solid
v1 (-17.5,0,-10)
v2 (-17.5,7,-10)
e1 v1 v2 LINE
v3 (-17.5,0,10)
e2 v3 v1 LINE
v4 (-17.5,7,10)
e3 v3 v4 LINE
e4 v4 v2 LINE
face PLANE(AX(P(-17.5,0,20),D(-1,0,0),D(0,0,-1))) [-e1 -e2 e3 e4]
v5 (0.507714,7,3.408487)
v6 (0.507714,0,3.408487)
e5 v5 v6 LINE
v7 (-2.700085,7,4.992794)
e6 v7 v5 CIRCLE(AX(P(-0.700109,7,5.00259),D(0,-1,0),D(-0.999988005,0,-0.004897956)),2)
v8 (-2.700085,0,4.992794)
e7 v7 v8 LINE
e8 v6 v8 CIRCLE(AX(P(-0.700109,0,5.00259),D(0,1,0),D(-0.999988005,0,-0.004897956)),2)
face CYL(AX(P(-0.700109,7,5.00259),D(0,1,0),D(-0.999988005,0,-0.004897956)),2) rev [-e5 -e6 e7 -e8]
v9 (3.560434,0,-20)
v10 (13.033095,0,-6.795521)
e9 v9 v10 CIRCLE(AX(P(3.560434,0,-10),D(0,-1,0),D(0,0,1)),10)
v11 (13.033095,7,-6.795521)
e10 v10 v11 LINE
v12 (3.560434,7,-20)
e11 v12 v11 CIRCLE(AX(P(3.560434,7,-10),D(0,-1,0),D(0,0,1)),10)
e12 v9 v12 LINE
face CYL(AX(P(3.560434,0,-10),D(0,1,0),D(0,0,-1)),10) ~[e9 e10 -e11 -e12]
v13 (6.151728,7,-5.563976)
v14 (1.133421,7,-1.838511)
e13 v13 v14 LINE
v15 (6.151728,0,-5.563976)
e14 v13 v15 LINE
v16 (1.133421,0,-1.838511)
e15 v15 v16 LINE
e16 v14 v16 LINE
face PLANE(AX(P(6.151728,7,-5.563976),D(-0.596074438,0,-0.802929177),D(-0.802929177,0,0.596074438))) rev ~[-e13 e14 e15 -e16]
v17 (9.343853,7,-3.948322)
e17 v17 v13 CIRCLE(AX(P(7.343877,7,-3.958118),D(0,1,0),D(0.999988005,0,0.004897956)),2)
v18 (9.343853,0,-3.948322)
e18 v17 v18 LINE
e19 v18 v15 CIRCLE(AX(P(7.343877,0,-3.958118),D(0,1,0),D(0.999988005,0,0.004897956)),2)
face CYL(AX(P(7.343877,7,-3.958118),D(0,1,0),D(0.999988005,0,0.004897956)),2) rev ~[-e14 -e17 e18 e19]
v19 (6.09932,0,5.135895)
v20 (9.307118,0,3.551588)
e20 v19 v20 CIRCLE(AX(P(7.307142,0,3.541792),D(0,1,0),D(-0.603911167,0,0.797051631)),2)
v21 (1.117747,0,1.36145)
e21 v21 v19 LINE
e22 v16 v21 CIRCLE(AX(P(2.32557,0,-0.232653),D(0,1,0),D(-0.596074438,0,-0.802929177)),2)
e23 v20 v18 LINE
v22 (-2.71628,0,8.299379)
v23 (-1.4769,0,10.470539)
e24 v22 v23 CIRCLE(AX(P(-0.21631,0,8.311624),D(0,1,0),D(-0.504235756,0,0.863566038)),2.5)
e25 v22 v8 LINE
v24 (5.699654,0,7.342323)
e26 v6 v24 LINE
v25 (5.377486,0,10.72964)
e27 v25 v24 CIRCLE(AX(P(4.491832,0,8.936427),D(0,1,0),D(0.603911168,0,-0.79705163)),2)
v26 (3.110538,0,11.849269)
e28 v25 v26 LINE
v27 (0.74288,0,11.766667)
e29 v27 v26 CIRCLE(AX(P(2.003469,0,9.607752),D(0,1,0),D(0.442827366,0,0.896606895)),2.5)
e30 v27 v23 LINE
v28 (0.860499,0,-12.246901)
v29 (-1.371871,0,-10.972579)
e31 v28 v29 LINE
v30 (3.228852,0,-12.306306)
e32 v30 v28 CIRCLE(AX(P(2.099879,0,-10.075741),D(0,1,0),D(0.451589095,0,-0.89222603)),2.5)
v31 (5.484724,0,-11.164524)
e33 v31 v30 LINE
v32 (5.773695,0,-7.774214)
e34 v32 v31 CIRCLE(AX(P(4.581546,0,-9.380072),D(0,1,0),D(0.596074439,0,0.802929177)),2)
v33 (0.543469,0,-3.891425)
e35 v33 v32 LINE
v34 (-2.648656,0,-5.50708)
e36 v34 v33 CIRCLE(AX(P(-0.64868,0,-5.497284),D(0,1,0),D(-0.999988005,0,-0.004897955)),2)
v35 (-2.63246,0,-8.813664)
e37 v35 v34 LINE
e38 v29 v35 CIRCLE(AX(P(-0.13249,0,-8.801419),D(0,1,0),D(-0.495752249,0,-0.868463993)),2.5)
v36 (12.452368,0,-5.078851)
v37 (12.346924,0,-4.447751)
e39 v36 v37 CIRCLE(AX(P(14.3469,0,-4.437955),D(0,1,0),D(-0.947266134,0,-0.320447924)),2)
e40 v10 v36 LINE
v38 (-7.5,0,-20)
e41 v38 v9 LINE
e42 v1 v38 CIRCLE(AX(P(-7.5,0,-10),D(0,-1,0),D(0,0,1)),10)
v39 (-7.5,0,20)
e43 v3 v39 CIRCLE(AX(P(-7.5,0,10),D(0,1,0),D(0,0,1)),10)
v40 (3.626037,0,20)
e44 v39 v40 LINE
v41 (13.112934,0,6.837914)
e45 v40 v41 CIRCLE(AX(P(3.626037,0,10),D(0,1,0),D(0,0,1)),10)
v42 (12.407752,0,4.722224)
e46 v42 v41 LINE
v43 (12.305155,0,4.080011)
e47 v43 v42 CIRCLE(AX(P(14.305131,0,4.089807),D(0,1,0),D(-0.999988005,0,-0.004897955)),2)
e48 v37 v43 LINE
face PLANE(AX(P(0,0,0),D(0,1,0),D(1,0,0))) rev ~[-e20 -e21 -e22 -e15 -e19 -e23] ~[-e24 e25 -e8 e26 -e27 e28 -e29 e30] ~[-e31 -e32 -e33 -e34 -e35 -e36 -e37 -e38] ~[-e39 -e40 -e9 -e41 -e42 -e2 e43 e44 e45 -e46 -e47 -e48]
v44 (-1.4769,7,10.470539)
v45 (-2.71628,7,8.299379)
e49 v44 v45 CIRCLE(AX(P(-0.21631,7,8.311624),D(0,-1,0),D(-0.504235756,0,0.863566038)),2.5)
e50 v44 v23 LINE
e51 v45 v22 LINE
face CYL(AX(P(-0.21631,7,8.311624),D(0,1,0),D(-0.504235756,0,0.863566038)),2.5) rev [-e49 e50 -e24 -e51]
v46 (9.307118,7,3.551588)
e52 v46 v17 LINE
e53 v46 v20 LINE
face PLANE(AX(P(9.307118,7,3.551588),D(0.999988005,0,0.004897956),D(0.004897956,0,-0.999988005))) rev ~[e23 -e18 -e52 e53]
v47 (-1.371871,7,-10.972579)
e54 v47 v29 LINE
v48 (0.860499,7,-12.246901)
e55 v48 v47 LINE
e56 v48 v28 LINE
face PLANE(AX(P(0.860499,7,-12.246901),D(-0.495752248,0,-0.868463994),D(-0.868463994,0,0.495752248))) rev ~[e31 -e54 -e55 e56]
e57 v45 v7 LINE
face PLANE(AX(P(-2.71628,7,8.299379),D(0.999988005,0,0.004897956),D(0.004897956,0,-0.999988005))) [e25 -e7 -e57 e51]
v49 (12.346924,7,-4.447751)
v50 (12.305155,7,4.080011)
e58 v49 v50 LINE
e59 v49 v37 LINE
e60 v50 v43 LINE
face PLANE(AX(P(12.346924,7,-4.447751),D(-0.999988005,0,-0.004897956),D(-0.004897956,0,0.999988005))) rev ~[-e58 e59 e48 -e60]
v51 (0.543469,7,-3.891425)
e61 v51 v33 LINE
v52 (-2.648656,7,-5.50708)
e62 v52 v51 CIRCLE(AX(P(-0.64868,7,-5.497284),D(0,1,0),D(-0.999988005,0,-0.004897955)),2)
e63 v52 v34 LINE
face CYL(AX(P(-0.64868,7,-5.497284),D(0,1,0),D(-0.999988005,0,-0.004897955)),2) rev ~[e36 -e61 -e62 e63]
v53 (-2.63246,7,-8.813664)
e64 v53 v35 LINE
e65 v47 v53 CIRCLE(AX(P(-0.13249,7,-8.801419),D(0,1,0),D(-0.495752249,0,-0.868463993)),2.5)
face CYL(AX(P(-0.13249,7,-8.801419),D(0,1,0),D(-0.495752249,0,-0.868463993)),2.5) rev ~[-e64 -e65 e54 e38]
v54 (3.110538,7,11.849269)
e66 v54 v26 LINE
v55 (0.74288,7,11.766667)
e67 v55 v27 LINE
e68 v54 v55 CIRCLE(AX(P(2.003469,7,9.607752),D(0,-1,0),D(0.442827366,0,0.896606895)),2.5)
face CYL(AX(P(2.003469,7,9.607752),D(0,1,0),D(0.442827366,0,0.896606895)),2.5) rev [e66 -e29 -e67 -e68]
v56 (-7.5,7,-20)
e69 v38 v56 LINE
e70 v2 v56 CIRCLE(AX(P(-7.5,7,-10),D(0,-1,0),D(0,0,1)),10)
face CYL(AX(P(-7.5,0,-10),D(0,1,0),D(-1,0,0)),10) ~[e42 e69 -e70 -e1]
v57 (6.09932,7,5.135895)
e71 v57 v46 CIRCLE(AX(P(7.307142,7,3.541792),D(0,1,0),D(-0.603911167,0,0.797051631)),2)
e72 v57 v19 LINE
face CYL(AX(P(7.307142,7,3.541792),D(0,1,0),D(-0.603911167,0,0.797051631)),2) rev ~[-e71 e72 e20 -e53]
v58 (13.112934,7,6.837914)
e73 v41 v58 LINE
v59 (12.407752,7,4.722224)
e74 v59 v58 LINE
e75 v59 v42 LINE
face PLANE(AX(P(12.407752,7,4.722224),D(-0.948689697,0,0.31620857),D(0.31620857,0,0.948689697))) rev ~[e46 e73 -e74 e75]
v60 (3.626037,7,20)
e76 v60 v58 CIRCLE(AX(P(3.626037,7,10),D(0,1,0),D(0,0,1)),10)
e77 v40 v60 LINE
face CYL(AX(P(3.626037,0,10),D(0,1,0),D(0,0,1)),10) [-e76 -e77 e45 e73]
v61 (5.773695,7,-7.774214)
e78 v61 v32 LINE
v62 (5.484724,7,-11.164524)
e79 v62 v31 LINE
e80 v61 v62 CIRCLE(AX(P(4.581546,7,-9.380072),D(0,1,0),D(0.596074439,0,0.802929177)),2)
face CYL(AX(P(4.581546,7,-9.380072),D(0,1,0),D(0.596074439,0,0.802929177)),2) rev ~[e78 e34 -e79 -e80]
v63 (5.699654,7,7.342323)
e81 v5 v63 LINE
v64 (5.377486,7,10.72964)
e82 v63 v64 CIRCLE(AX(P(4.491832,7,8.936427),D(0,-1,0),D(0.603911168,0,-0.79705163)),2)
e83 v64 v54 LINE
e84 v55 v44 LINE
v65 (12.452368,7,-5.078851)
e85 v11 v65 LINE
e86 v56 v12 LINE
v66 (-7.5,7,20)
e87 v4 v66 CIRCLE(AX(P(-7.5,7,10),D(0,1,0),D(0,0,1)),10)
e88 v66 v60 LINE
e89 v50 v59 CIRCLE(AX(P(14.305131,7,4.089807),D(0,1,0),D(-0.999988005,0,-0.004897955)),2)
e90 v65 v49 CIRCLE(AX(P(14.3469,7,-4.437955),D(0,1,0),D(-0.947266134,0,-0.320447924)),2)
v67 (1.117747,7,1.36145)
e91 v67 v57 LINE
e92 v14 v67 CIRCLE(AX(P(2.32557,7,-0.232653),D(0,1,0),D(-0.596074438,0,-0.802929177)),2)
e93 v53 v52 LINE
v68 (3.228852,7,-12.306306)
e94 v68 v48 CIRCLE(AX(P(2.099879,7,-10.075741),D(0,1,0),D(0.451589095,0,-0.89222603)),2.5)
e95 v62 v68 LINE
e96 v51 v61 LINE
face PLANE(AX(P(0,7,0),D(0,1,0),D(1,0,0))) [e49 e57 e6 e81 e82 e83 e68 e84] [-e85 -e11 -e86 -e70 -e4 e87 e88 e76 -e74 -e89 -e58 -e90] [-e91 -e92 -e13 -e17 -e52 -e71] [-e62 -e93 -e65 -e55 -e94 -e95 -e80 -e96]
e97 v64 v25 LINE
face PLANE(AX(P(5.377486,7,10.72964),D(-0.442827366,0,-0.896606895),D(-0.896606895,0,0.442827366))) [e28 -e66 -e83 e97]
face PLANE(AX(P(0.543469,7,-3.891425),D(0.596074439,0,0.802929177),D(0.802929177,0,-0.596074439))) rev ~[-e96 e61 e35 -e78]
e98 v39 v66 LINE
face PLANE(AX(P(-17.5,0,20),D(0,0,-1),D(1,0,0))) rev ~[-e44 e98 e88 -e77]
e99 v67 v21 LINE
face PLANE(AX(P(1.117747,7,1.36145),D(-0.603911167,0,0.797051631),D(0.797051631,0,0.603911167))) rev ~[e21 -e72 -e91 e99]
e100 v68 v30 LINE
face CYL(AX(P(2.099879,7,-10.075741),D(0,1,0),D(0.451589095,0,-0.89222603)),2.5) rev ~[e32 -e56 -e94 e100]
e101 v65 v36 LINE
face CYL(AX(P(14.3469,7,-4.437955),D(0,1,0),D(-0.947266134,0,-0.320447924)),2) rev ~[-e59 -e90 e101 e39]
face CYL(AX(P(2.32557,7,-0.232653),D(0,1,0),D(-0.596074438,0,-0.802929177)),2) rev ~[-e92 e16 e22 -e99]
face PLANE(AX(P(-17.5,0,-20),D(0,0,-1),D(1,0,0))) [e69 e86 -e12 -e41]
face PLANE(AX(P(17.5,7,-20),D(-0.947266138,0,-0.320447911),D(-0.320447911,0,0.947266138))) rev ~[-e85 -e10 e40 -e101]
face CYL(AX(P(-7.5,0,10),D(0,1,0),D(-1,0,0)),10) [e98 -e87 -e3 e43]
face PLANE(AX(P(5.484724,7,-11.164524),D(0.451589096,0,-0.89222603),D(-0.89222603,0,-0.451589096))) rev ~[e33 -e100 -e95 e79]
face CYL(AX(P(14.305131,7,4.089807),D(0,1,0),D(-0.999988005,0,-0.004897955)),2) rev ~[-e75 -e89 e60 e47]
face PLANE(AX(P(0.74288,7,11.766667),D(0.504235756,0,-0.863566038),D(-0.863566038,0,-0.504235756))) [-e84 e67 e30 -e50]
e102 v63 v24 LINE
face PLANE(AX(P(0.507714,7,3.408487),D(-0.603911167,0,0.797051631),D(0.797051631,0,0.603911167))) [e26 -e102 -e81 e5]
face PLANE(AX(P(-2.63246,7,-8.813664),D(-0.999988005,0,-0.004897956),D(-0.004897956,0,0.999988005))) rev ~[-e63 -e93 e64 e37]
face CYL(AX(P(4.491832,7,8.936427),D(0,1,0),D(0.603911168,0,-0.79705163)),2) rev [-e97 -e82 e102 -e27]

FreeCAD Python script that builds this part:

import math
import FreeCAD as App
import Part
import Sketcher
from FreeCAD import Vector
Q = App.Units.Quantity


def edges_at(feature, points):
    """Names of the edges that pass closest to the given points."""
    edges = feature.Shape.Edges
    near = lambda p: min(range(len(edges)), key=lambda i: edges[i].distToShape(Part.Vertex(*p))[0])
    return sorted({f"Edge{near(p) + 1}" for p in points})


def add_polygon(sketch, points):
    """Adds a closed chain of lines whose ends are joined by coincident constraints."""
    first, n = sketch.GeometryCount, len(points)
    for a, b in zip(points, points[1:] + points[:1]):
        sketch.addGeometry(Part.LineSegment(App.Vector(*a, 0), App.Vector(*b, 0)), False)
    for i in range(n):
        sketch.addConstraint(Sketcher.Constraint("Coincident", first + i, 2, first + (i + 1) % n, 1))

doc = App.newDocument("Part")
body = doc.addObject("PartDesign::Body", "Body")

# Sketch on XZ plane
sketch1 = doc.addObject("Sketcher::SketchObject", "Sketch")
body.addObject(sketch1)
sketch1.AttachmentSupport = (doc.XZ_Plane, [""])
sketch1.MapMode = "FlatFace"
add_polygon(sketch1, [(-18, -20), (-18, 20), (18, 20), (18, -20)])  # lines 0-3
sketch1.addConstraint([
    Sketcher.Constraint("Vertical", 0),
    Sketcher.Constraint("Horizontal", 1),
    Sketcher.Constraint("Vertical", 2),
    Sketcher.Constraint("Horizontal", 3),
    Sketcher.Constraint("Symmetric", 0, 2, 2, 2, -1, 1),
    Sketcher.Constraint("DistanceX", 1, 1, 1, 2, 35.0),
    Sketcher.Constraint("DistanceY", 0, 1, 0, 2, 40.0),
])
pad1 = doc.addObject("PartDesign::Pad", "Pad")
body.addObject(pad1)
pad1.Profile = sketch1
pad1.Length = 7
pad1.Reversed = True

# Sketch on XZ plane
sketch2 = doc.addObject("Sketcher::SketchObject", "Sketch001")
body.addObject(sketch2)
sketch2.AttachmentSupport = (doc.XZ_Plane, [""])
sketch2.MapMode = "FlatFace"
sketch2.AttachmentOffset = App.Placement(Vector(0, 0, -7), App.Rotation())
sketch2.addGeometry([
    Part.LineSegment(Vector(17.5, -20, 0), Vector(12.5, -5.1, 0)),  # 0
    Part.ArcOfCircle(Part.Circle(Vector(14.3, -4.4, 0), Vector(0, 0, 1), 2), math.radians(-179.72), math.radians(-161.31)),  # 1
    Part.LineSegment(Vector(12.3, -4.4, 0), Vector(12.3, 4.1, 0)),  # 2
    Part.ArcOfCircle(Part.Circle(Vector(14.3, 4.1, 0), Vector(0, 0, 1), 2), math.radians(161.57), math.radians(180.28)),  # 3
    Part.LineSegment(Vector(12.4, 4.7, 0), Vector(17.5, 20, 0)),  # 4
    Part.LineSegment(Vector(17.5, 20, 0), Vector(17.5, -20, 0)),  # 5
    Part.LineSegment(Vector(1.1, 1.4, 0), Vector(6.1, 5.1, 0)),  # 6
    Part.ArcOfCircle(Part.Circle(Vector(7.3, 3.5, 0), Vector(0, 0, 1), 2), math.radians(0), math.radians(127)),  # 7
    Part.LineSegment(Vector(9.3, 3.6, 0), Vector(9.3, -3.9, 0)),  # 8
    Part.ArcOfCircle(Part.Circle(Vector(7.3, -4, 0), Vector(0, 0, 1), 2), math.radians(-127), math.radians(0)),  # 9
    Part.LineSegment(Vector(6.2, -5.6, 0), Vector(1.1, -1.8, 0)),  # 10
    Part.ArcOfCircle(Part.Circle(Vector(2.3, -0.2, 0), Vector(0, 0, 1), 2), math.radians(127), math.radians(233)),  # 11
    Part.LineSegment(Vector(-2.6, -8.8, 0), Vector(-2.6, -5.5, 0)),  # 12
    Part.ArcOfCircle(Part.Circle(Vector(-0.6, -5.5, 0), Vector(0, 0, 1), 2), math.radians(53), math.radians(180)),  # 13
    Part.LineSegment(Vector(0.5, -3.9, 0), Vector(5.8, -7.8, 0)),  # 14
    Part.ArcOfCircle(Part.Circle(Vector(4.6, -9.4, 0), Vector(0, 0, 1), 2), math.radians(-63), math.radians(53)),  # 15
    Part.LineSegment(Vector(5.5, -11.2, 0), Vector(3.2, -12.3, 0)),  # 16
    Part.ArcOfCircle(Part.Circle(Vector(2.1, -10.1, 0), Vector(0, 0, 1), 2.5), math.radians(-120), math.radians(-63)),  # 17
    Part.LineSegment(Vector(0.9, -12.2, 0), Vector(-1.4, -11, 0)),  # 18
    Part.ArcOfCircle(Part.Circle(Vector(-0.1, -8.8, 0), Vector(0, 0, 1), 2.5), math.radians(-180), math.radians(-120)),  # 19
    Part.LineSegment(Vector(5.7, 7.3, 0), Vector(0.5, 3.4, 0)),  # 20
    Part.ArcOfCircle(Part.Circle(Vector(-0.7, 5, 0), Vector(0, 0, 1), 2), math.radians(-180), math.radians(-53)),  # 21
    Part.LineSegment(Vector(-2.7, 5, 0), Vector(-2.7, 8.3, 0)),  # 22
    Part.ArcOfCircle(Part.Circle(Vector(-0.2, 8.3, 0), Vector(0, 0, 1), 2.5), math.radians(120), math.radians(180)),  # 23
    Part.LineSegment(Vector(-1.5, 10.5, 0), Vector(0.7, 11.8, 0)),  # 24
    Part.ArcOfCircle(Part.Circle(Vector(2, 9.6, 0), Vector(0, 0, 1), 2.5), math.radians(64), math.radians(120)),  # 25
    Part.LineSegment(Vector(3.1, 11.8, 0), Vector(5.4, 10.7, 0)),  # 26
    Part.ArcOfCircle(Part.Circle(Vector(4.5, 8.9, 0), Vector(0, 0, 1), 2), math.radians(-53), math.radians(64)),  # 27
], False)
sketch2.addConstraint([
    Sketcher.Constraint("Tangent", 0, 2, 1, 2),
    Sketcher.Constraint("Tangent", 1, 1, 2, 1),
    Sketcher.Constraint("Tangent", 2, 2, 3, 2),
    Sketcher.Constraint("Tangent", 3, 1, 4, 1),
    Sketcher.Constraint("Coincident", 4, 2, 5, 1),
    Sketcher.Constraint("Coincident", 5, 2, 0, 1),
    Sketcher.Constraint("Tangent", 6, 2, 7, 2),
    Sketcher.Constraint("Tangent", 7, 1, 8, 1),
    Sketcher.Constraint("Tangent", 8, 2, 9, 2),
    Sketcher.Constraint("Tangent", 9, 1, 10, 1),
    Sketcher.Constraint("Tangent", 10, 2, 11, 2),
    Sketcher.Constraint("Tangent", 11, 1, 6, 1),
    Sketcher.Constraint("Tangent", 12, 2, 13, 2),
    Sketcher.Constraint("Tangent", 13, 1, 14, 1),
    Sketcher.Constraint("Tangent", 14, 2, 15, 2),
    Sketcher.Constraint("Tangent", 15, 1, 16, 1),
    Sketcher.Constraint("Tangent", 16, 2, 17, 2),
    Sketcher.Constraint("Tangent", 17, 1, 18, 1),
    Sketcher.Constraint("Tangent", 18, 2, 19, 2),
    Sketcher.Constraint("Tangent", 19, 1, 12, 1),
    Sketcher.Constraint("Tangent", 20, 2, 21, 2),
    Sketcher.Constraint("Tangent", 21, 1, 22, 1),
    Sketcher.Constraint("Tangent", 22, 2, 23, 2),
    Sketcher.Constraint("Tangent", 23, 1, 24, 1),
    Sketcher.Constraint("Tangent", 24, 2, 25, 2),
    Sketcher.Constraint("Tangent", 25, 1, 26, 1),
    Sketcher.Constraint("Tangent", 26, 2, 27, 2),
    Sketcher.Constraint("Tangent", 27, 1, 20, 1),
    Sketcher.Constraint("Vertical", 5),
    Sketcher.Constraint("Equal", 1, 3),
    Sketcher.Constraint("Equal", 3, 7),
    Sketcher.Constraint("Equal", 7, 9),
    Sketcher.Constraint("Equal", 9, 11),
    Sketcher.Constraint("Equal", 11, 13),
    Sketcher.Constraint("Equal", 13, 15),
    Sketcher.Constraint("Equal", 17, 19),
    Sketcher.Constraint("Equal", 15, 21),
    Sketcher.Constraint("Equal", 19, 23),
    Sketcher.Constraint("Equal", 23, 25),
    Sketcher.Constraint("Equal", 21, 27),
    Sketcher.Constraint("Parallel", 2, 8),
    Sketcher.Constraint("Parallel", 8, 12),
    Sketcher.Constraint("Parallel", 10, 14),
    Sketcher.Constraint("Parallel", 6, 20),
    Sketcher.Constraint("Parallel", 12, 22),
    Sketcher.Constraint("Equal", 6, 10),
    Sketcher.Constraint("Equal", 14, 20),
    Sketcher.Constraint("Equal", 12, 22),
    Sketcher.Constraint("Equal", 18, 24),
    Sketcher.Constraint("Equal", 16, 26),
    Sketcher.Constraint("Radius", 1, 2.0),
    Sketcher.Constraint("Radius", 17, 2.5),
    Sketcher.Constraint("DistanceY", 5, 2, 5, 1, 40.0),
    Sketcher.Constraint("DistanceY", -1, 1, 4, 2, 20.0),
    Sketcher.Constraint("Distance", 8, 7.5),
    Sketcher.Constraint("DistanceX", -1, 1, 4, 2, 17.5),
    Sketcher.Constraint("Angle", 0, Q("108.690015 deg")),
    Sketcher.Constraint("Distance", 6, 6.25),
    Sketcher.Constraint("DistanceY", 10, 2, 20, 2, 5.246998),
    Sketcher.Constraint("DistanceX", -1, 1, 1, 3, 14.3469),
    Sketcher.Constraint("DistanceX", -1, 1, 17, 1, 0.860499),
    Sketcher.Constraint("DistanceY", 17, 1, -1, 1, 12.246901),
    Sketcher.Constraint("DistanceX", 23, 1, -1, 1, 1.4769),
    Sketcher.Constraint("DistanceY", 1, 3, 11, 3, 4.205302),
    Sketcher.Constraint("DistanceY", 19, 3, 9, 3, 4.843301),
    Sketcher.Constraint("DistanceY", 7, 3, 21, 3, 1.460798),
    Sketcher.Constraint("DistanceX", 25, 3, 11, 3, 0.322101),
    Sketcher.Constraint("DistanceX", 13, 3, 10, 2, 1.782101),
    Sketcher.Constraint("Distance", 4, 16.104081),
    Sketcher.Constraint("DistanceY", -1, 1, 25, 3, 9.607752),
    Sketcher.Constraint("DistanceX", -1, 1, 27, 3, 4.491832),
])
pocket1 = doc.addObject("PartDesign::Pocket", "Pocket")
body.addObject(pocket1)
pocket1.Profile = sketch2
pocket1.Length = 8
pocket1.Reversed = True
doc.recompute()

fillet = doc.addObject("PartDesign::Fillet", "Fillet")
body.addObject(fillet)
fillet.Base = (pocket1, edges_at(pocket1, [
    (17.5, 3.5, 20),
    (-17.5, 3.5, 20),
    (-17.5, 3.5, -20),
    (17.5, 3.5, -20),
]))
fillet.Radius = 10

doc.recompute()
